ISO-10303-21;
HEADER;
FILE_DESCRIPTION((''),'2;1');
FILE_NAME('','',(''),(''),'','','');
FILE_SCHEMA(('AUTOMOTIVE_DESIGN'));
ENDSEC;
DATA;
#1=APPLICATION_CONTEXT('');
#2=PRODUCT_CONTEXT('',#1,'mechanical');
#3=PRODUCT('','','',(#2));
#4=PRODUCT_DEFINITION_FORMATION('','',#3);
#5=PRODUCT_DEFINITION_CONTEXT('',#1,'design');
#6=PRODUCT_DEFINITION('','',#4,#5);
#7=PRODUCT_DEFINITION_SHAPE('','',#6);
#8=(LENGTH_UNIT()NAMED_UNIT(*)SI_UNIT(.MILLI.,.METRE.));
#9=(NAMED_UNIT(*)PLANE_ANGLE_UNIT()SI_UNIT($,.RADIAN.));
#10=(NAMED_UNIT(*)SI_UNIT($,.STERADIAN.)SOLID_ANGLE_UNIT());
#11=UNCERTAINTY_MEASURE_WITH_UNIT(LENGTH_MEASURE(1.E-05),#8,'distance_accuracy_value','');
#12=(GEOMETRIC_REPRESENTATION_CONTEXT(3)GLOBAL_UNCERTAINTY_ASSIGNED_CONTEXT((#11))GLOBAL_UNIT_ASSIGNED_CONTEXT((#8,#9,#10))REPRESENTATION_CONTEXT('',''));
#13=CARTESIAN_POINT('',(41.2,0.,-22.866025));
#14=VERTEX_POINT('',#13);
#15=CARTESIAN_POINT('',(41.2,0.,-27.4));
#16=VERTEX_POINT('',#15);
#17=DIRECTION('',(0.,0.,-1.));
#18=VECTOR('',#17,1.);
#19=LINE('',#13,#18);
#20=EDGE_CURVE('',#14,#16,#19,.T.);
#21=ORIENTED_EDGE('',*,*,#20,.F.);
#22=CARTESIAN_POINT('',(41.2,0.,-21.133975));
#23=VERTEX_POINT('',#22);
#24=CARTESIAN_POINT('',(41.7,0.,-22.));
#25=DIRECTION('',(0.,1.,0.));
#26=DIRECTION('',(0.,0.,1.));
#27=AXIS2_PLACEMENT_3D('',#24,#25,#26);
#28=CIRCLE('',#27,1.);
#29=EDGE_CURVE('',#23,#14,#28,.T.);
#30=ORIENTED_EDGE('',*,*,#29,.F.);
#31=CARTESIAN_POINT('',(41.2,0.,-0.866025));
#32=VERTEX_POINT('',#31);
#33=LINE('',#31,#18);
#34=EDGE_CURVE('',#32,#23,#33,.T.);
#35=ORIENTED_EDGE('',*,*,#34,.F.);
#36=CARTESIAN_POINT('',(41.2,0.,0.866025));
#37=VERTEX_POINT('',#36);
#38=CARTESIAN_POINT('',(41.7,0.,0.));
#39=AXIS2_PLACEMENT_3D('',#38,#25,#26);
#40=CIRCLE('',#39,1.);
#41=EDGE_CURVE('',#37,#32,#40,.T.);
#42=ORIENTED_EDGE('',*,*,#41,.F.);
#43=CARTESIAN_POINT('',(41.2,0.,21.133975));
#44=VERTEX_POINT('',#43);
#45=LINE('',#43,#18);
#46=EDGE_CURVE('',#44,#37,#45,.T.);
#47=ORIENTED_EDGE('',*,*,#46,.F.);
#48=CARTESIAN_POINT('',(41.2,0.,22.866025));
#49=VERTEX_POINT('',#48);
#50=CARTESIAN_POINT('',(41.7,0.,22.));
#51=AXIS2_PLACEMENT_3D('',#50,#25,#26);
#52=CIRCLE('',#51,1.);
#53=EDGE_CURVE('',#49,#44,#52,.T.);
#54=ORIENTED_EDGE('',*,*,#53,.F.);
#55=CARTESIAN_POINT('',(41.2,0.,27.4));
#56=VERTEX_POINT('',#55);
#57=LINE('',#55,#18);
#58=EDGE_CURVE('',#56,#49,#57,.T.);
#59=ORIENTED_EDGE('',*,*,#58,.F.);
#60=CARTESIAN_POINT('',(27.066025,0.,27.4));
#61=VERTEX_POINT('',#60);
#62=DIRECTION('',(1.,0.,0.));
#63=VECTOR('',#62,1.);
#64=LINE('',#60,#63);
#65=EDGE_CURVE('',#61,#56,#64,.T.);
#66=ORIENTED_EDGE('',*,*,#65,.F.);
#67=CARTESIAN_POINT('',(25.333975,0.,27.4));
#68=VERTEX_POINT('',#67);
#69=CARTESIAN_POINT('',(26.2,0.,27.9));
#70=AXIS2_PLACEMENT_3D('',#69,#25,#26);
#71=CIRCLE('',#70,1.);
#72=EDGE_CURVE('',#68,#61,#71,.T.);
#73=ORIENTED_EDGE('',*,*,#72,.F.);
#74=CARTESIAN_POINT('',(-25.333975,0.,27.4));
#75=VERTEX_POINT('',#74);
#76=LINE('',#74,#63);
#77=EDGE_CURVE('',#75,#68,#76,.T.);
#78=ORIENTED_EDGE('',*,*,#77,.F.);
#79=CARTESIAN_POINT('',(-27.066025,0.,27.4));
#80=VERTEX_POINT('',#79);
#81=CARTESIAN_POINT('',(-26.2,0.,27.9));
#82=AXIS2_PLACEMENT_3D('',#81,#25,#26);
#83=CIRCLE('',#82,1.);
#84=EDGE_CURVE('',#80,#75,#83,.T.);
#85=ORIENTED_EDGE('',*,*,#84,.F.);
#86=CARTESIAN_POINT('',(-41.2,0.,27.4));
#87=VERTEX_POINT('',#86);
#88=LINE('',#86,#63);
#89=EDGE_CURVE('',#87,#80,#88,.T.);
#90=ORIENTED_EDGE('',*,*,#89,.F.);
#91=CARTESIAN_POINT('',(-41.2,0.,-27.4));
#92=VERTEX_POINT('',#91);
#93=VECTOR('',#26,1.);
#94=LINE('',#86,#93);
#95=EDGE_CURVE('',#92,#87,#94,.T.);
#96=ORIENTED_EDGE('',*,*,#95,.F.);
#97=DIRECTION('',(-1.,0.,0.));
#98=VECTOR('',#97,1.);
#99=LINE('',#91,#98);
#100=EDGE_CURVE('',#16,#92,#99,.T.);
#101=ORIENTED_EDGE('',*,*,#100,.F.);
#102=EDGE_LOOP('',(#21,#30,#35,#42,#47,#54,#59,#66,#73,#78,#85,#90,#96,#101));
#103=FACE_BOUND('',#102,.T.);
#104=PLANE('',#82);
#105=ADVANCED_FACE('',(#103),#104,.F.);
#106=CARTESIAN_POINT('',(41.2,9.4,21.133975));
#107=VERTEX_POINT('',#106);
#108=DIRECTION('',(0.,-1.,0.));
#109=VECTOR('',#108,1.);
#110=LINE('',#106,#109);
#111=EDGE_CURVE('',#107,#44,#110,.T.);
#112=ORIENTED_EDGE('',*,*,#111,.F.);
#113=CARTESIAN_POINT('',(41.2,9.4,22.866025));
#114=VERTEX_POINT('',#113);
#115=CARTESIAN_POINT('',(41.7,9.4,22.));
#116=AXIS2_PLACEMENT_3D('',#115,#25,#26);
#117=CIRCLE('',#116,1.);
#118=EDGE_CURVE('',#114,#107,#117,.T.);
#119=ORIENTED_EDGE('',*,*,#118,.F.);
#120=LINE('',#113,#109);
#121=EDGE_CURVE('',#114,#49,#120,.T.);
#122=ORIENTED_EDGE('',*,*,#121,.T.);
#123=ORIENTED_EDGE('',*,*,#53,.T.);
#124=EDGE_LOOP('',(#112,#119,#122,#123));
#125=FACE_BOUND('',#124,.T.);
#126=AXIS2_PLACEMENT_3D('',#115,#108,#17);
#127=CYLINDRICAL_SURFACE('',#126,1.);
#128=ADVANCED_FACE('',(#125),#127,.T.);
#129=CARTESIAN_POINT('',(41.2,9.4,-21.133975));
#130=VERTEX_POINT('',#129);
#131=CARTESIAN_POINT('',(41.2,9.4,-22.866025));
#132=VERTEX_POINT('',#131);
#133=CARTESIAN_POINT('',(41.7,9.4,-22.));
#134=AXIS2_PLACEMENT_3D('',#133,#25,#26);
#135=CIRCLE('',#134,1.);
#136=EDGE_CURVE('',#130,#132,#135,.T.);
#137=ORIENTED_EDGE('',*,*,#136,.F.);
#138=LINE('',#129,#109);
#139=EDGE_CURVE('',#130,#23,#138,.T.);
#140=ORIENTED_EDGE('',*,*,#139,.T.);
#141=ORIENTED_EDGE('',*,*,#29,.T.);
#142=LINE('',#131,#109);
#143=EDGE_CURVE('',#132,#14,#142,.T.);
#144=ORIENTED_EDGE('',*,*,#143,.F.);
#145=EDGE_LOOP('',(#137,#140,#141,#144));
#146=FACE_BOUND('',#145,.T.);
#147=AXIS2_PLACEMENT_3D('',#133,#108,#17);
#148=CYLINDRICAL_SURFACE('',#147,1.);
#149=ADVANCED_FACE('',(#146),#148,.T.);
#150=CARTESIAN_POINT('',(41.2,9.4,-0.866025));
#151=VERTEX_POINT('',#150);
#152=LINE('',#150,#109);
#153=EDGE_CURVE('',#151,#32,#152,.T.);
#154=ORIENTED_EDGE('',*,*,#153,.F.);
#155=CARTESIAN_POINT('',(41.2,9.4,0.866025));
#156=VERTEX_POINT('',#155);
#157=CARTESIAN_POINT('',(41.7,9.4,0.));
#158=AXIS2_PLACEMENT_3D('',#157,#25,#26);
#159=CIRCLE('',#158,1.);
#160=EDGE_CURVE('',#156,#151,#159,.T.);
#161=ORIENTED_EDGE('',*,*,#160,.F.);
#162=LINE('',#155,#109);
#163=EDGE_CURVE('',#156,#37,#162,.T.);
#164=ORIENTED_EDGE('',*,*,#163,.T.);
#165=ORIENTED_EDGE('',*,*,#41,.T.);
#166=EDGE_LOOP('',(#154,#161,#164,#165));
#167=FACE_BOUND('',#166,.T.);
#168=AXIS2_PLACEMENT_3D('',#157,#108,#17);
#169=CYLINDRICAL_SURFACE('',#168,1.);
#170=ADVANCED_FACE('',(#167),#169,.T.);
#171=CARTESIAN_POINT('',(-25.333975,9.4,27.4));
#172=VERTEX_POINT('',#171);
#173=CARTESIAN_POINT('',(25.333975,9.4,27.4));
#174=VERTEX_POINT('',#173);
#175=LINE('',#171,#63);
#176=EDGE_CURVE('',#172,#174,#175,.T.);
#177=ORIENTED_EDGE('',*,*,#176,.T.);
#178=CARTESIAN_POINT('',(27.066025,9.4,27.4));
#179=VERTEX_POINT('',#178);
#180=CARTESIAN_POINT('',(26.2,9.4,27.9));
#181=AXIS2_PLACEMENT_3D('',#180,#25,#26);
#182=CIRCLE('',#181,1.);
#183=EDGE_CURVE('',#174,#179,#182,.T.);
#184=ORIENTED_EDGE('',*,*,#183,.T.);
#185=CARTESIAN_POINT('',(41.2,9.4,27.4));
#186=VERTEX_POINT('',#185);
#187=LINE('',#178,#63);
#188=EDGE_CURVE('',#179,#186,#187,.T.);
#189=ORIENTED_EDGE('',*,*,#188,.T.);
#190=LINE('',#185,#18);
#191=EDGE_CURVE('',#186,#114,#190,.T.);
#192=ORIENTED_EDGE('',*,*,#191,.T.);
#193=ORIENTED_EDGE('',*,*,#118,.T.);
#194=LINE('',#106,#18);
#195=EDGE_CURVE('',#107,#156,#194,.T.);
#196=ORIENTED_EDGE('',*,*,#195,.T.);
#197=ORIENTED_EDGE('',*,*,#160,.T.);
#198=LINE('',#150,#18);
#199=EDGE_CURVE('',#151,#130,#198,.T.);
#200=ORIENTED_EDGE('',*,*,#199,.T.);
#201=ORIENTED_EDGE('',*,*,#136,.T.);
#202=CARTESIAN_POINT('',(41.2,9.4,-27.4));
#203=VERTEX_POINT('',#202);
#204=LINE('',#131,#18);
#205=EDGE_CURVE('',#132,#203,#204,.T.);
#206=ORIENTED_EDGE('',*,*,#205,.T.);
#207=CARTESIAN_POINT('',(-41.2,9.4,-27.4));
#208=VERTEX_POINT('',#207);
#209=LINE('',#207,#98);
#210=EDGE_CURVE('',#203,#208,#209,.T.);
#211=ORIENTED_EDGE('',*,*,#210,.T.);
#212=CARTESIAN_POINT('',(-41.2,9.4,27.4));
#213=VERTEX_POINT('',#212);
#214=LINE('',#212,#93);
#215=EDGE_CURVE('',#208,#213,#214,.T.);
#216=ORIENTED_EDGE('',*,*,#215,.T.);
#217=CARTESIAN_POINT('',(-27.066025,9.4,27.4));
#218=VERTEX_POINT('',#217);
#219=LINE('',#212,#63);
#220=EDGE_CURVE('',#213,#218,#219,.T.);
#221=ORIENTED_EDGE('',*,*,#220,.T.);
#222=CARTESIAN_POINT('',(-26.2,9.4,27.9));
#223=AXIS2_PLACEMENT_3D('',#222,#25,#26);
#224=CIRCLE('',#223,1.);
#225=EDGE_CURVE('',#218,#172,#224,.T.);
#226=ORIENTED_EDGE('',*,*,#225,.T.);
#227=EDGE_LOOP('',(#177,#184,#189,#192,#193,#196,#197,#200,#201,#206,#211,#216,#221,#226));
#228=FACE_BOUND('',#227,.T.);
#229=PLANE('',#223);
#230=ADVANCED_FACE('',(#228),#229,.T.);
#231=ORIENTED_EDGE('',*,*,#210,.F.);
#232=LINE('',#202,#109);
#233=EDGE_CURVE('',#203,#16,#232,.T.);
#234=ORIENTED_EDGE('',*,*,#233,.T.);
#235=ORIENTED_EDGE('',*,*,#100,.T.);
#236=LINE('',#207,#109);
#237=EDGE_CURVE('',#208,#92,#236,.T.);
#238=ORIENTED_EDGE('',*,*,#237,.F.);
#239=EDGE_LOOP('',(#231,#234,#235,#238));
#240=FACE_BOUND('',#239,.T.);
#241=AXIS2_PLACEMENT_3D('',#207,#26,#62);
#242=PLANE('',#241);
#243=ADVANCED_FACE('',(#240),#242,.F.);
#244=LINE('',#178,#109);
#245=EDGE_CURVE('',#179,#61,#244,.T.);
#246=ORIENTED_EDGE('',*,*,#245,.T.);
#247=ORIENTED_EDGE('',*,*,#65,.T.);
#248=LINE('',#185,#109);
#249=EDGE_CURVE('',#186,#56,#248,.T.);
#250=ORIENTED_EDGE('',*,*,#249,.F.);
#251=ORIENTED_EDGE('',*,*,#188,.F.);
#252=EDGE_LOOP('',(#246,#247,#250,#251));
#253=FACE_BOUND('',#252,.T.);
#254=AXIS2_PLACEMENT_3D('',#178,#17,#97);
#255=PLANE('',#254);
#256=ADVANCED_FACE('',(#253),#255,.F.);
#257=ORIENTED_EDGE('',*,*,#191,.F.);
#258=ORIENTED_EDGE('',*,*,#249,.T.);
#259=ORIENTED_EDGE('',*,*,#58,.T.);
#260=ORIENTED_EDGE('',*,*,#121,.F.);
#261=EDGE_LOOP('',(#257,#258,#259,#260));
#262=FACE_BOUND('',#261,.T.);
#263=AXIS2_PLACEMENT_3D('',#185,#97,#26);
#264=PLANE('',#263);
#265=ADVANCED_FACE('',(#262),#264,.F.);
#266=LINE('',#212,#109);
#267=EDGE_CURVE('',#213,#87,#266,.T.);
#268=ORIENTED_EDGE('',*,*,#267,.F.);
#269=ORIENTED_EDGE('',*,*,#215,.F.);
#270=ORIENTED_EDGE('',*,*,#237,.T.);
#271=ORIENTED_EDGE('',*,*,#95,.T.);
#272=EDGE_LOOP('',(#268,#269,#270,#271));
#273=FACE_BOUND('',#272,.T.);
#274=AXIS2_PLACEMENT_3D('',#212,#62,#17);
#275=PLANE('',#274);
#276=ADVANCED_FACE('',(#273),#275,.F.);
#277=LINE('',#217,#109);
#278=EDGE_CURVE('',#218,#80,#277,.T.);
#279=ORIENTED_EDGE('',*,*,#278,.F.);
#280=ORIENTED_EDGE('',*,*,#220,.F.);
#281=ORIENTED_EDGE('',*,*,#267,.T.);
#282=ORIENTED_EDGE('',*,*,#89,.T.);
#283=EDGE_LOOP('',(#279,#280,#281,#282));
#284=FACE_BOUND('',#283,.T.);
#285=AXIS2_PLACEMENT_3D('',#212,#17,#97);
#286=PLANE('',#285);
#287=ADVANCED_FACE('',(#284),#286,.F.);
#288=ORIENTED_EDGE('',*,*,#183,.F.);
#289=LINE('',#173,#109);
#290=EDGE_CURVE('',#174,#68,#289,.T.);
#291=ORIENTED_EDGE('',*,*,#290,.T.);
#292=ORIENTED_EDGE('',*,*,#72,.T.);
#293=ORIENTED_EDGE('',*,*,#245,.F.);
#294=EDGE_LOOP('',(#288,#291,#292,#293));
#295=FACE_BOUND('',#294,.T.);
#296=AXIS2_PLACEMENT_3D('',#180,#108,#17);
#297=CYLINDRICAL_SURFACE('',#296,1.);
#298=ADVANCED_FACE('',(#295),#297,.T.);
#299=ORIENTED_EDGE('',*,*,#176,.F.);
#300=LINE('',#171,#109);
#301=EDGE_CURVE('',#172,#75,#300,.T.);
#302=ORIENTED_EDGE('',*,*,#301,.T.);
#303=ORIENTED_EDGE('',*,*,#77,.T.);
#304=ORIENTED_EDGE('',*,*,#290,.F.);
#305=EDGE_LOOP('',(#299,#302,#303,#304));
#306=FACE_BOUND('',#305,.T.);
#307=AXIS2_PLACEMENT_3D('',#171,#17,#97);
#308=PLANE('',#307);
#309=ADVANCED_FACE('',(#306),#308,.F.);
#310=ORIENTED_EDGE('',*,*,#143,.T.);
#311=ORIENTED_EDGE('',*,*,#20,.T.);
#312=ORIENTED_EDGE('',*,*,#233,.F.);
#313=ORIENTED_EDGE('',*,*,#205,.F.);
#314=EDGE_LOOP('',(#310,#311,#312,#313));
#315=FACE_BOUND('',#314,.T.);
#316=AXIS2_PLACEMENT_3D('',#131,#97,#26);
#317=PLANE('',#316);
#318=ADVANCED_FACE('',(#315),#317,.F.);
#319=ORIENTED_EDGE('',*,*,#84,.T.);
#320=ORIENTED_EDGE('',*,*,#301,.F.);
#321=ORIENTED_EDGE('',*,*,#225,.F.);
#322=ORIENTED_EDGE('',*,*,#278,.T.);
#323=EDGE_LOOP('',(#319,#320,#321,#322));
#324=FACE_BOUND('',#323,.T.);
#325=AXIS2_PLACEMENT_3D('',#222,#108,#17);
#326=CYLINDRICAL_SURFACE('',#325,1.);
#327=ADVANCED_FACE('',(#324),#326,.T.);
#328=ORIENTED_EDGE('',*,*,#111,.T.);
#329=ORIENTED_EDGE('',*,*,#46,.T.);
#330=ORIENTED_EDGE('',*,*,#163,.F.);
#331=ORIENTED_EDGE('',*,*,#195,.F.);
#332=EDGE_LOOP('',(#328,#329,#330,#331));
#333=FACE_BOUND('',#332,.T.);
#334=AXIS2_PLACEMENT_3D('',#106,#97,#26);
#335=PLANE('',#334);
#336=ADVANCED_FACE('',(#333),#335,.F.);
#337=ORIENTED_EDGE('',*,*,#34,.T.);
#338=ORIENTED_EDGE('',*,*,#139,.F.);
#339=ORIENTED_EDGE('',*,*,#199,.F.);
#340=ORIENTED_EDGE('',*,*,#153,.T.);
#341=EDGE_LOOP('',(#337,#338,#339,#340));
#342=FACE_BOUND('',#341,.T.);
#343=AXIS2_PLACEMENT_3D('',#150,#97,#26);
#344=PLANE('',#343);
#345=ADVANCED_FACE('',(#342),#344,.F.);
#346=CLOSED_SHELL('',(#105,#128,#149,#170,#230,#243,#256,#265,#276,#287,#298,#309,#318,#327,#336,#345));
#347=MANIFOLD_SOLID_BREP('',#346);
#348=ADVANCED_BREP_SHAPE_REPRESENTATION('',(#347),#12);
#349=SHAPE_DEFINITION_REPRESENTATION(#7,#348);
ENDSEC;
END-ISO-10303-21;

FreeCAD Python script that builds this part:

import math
import FreeCAD as App
import Part
import Sketcher
Q = App.Units.Quantity

doc = App.newDocument("Part")
params = doc.addObject("Spreadsheet::Sheet", "Params")
for row, (alias, value) in enumerate([
    ("sketch1_radius", "1 mm"),
    ("sketch1_width", "82.4 mm"),
    ("sketch1_height", "54.8 mm"),
    ("pad1_length", "9.4 mm"),
], start=1):
    params.set(f"A{row}", alias)
    params.set(f"B{row}", "=" + value)
    params.setAlias(f"B{row}", alias)

body = doc.addObject("PartDesign::Body", "Body")

# Sketch on XZ plane
sketch1 = doc.addObject("Sketcher::SketchObject", "Sketch")
body.addObject(sketch1)
sketch1.AttachmentSupport = (doc.XZ_Plane, [""])
sketch1.MapMode = "FlatFace"
sketch1.addGeometry([
    Part.LineSegment(App.Vector(-41.2, 27.4, 0), App.Vector(-27.066025, 27.4, 0)),  # 0
    Part.ArcOfCircle(Part.Circle(App.Vector(-26.2, 27.9, 0), App.Vector(0, 0, 1), 1), math.radians(-30), math.radians(210)),  # 1
    Part.LineSegment(App.Vector(-25.333975, 27.4, 0), App.Vector(25.333975, 27.4, 0)),  # 2
    Part.ArcOfCircle(Part.Circle(App.Vector(26.2, 27.9, 0), App.Vector(0, 0, 1), 1), math.radians(-30), math.radians(210)),  # 3
    Part.LineSegment(App.Vector(27.066025, 27.4, 0), App.Vector(41.2, 27.4, 0)),  # 4
    Part.LineSegment(App.Vector(41.2, 27.4, 0), App.Vector(41.2, 22.866025, 0)),  # 5
    Part.ArcOfCircle(Part.Circle(App.Vector(41.7, 22, 0), App.Vector(0, 0, 1), 1), math.radians(-120), math.radians(120)),  # 6
    Part.LineSegment(App.Vector(41.2, 21.133975, 0), App.Vector(41.2, 0.866025, 0)),  # 7
    Part.ArcOfCircle(Part.Circle(App.Vector(41.7, 0, 0), App.Vector(0, 0, 1), 1), math.radians(-120), math.radians(120)),  # 8
    Part.LineSegment(App.Vector(41.2, -0.866025, 0), App.Vector(41.2, -21.133975, 0)),  # 9
    Part.ArcOfCircle(Part.Circle(App.Vector(41.7, -22, 0), App.Vector(0, 0, 1), 1), math.radians(-120), math.radians(120)),  # 10
    Part.LineSegment(App.Vector(41.2, -22.866025, 0), App.Vector(41.2, -27.4, 0)),  # 11
    Part.LineSegment(App.Vector(41.2, -27.4, 0), App.Vector(-41.2, -27.4, 0)),  # 12
    Part.LineSegment(App.Vector(-41.2, -27.4, 0), App.Vector(-41.2, 27.4, 0)),  # 13
], False)
sketch1.addConstraint([
    Sketcher.Constraint("Coincident", 0, 2, 1, 2),
    Sketcher.Constraint("Coincident", 1, 1, 2, 1),
    Sketcher.Constraint("Coincident", 2, 2, 3, 2),
    Sketcher.Constraint("Coincident", 3, 1, 4, 1),
    Sketcher.Constraint("Coincident", 4, 2, 5, 1),
    Sketcher.Constraint("Coincident", 5, 2, 6, 2),
    Sketcher.Constraint("Coincident", 6, 1, 7, 1),
    Sketcher.Constraint("Coincident", 7, 2, 8, 2),
    Sketcher.Constraint("Coincident", 8, 1, 9, 1),
    Sketcher.Constraint("Coincident", 9, 2, 10, 2),
    Sketcher.Constraint("Coincident", 10, 1, 11, 1),
    Sketcher.Constraint("Coincident", 11, 2, 12, 1),
    Sketcher.Constraint("Coincident", 12, 2, 13, 1),
    Sketcher.Constraint("Coincident", 13, 2, 0, 1),
    Sketcher.Constraint("Horizontal", 0),
    Sketcher.Constraint("Horizontal", 2),
    Sketcher.Constraint("Horizontal", 4),
    Sketcher.Constraint("Vertical", 5),
    Sketcher.Constraint("Vertical", 7),
    Sketcher.Constraint("Vertical", 9),
    Sketcher.Constraint("Vertical", 11),
    Sketcher.Constraint("Horizontal", 12),
    Sketcher.Constraint("Vertical", 13),
    Sketcher.Constraint("Equal", 1, 3),
    Sketcher.Constraint("Equal", 3, 6),
    Sketcher.Constraint("Equal", 6, 8),
    Sketcher.Constraint("Equal", 8, 10),
    Sketcher.Constraint("Symmetric", 4, 2, 12, 2, -1, 1),
    Sketcher.Constraint("Symmetric", 11, 2, 13, 2, -1, 1),
    Sketcher.Constraint("Symmetric", 1, 3, 3, 3, -2),
    Sketcher.Constraint("Symmetric", 6, 3, 10, 3, -1),
    Sketcher.Constraint("Symmetric", 7, 2, 8, 1, -1),
    Sketcher.Constraint("Horizontal", 0, 2, 1, 1),
    Sketcher.Constraint("Vertical", 6, 3, 8, 3),
    Sketcher.Constraint("Vertical", 5, 2, 6, 1),
    Sketcher.Constraint("Radius", 1, Q("1 mm")),
    Sketcher.Constraint("DistanceX", 12, 2, 12, 1, Q("82.4 mm")),
    Sketcher.Constraint("DistanceY", 13, 1, 13, 2, Q("54.8 mm")),
    Sketcher.Constraint("DistanceY", -1, 1, 6, 3, Q("22 mm")),
    Sketcher.Constraint("DistanceX", 3, 3, 4, 2, Q("15 mm")),
    Sketcher.Constraint("DistanceY", -1, 1, 1, 3, Q("27.9 mm")),
    Sketcher.Constraint("DistanceX", -1, 1, 6, 3, Q("41.7 mm")),
])
sketch1.setExpression("Constraints[35]", "Params.sketch1_radius")
sketch1.setExpression("Constraints[36]", "Params.sketch1_width")
sketch1.setExpression("Constraints[37]", "Params.sketch1_height")
pad1 = doc.addObject("PartDesign::Pad", "Pad")
body.addObject(pad1)
pad1.Profile = sketch1
pad1.setExpression("Length", "Params.pad1_length")
pad1.Reversed = True

doc.recompute()
